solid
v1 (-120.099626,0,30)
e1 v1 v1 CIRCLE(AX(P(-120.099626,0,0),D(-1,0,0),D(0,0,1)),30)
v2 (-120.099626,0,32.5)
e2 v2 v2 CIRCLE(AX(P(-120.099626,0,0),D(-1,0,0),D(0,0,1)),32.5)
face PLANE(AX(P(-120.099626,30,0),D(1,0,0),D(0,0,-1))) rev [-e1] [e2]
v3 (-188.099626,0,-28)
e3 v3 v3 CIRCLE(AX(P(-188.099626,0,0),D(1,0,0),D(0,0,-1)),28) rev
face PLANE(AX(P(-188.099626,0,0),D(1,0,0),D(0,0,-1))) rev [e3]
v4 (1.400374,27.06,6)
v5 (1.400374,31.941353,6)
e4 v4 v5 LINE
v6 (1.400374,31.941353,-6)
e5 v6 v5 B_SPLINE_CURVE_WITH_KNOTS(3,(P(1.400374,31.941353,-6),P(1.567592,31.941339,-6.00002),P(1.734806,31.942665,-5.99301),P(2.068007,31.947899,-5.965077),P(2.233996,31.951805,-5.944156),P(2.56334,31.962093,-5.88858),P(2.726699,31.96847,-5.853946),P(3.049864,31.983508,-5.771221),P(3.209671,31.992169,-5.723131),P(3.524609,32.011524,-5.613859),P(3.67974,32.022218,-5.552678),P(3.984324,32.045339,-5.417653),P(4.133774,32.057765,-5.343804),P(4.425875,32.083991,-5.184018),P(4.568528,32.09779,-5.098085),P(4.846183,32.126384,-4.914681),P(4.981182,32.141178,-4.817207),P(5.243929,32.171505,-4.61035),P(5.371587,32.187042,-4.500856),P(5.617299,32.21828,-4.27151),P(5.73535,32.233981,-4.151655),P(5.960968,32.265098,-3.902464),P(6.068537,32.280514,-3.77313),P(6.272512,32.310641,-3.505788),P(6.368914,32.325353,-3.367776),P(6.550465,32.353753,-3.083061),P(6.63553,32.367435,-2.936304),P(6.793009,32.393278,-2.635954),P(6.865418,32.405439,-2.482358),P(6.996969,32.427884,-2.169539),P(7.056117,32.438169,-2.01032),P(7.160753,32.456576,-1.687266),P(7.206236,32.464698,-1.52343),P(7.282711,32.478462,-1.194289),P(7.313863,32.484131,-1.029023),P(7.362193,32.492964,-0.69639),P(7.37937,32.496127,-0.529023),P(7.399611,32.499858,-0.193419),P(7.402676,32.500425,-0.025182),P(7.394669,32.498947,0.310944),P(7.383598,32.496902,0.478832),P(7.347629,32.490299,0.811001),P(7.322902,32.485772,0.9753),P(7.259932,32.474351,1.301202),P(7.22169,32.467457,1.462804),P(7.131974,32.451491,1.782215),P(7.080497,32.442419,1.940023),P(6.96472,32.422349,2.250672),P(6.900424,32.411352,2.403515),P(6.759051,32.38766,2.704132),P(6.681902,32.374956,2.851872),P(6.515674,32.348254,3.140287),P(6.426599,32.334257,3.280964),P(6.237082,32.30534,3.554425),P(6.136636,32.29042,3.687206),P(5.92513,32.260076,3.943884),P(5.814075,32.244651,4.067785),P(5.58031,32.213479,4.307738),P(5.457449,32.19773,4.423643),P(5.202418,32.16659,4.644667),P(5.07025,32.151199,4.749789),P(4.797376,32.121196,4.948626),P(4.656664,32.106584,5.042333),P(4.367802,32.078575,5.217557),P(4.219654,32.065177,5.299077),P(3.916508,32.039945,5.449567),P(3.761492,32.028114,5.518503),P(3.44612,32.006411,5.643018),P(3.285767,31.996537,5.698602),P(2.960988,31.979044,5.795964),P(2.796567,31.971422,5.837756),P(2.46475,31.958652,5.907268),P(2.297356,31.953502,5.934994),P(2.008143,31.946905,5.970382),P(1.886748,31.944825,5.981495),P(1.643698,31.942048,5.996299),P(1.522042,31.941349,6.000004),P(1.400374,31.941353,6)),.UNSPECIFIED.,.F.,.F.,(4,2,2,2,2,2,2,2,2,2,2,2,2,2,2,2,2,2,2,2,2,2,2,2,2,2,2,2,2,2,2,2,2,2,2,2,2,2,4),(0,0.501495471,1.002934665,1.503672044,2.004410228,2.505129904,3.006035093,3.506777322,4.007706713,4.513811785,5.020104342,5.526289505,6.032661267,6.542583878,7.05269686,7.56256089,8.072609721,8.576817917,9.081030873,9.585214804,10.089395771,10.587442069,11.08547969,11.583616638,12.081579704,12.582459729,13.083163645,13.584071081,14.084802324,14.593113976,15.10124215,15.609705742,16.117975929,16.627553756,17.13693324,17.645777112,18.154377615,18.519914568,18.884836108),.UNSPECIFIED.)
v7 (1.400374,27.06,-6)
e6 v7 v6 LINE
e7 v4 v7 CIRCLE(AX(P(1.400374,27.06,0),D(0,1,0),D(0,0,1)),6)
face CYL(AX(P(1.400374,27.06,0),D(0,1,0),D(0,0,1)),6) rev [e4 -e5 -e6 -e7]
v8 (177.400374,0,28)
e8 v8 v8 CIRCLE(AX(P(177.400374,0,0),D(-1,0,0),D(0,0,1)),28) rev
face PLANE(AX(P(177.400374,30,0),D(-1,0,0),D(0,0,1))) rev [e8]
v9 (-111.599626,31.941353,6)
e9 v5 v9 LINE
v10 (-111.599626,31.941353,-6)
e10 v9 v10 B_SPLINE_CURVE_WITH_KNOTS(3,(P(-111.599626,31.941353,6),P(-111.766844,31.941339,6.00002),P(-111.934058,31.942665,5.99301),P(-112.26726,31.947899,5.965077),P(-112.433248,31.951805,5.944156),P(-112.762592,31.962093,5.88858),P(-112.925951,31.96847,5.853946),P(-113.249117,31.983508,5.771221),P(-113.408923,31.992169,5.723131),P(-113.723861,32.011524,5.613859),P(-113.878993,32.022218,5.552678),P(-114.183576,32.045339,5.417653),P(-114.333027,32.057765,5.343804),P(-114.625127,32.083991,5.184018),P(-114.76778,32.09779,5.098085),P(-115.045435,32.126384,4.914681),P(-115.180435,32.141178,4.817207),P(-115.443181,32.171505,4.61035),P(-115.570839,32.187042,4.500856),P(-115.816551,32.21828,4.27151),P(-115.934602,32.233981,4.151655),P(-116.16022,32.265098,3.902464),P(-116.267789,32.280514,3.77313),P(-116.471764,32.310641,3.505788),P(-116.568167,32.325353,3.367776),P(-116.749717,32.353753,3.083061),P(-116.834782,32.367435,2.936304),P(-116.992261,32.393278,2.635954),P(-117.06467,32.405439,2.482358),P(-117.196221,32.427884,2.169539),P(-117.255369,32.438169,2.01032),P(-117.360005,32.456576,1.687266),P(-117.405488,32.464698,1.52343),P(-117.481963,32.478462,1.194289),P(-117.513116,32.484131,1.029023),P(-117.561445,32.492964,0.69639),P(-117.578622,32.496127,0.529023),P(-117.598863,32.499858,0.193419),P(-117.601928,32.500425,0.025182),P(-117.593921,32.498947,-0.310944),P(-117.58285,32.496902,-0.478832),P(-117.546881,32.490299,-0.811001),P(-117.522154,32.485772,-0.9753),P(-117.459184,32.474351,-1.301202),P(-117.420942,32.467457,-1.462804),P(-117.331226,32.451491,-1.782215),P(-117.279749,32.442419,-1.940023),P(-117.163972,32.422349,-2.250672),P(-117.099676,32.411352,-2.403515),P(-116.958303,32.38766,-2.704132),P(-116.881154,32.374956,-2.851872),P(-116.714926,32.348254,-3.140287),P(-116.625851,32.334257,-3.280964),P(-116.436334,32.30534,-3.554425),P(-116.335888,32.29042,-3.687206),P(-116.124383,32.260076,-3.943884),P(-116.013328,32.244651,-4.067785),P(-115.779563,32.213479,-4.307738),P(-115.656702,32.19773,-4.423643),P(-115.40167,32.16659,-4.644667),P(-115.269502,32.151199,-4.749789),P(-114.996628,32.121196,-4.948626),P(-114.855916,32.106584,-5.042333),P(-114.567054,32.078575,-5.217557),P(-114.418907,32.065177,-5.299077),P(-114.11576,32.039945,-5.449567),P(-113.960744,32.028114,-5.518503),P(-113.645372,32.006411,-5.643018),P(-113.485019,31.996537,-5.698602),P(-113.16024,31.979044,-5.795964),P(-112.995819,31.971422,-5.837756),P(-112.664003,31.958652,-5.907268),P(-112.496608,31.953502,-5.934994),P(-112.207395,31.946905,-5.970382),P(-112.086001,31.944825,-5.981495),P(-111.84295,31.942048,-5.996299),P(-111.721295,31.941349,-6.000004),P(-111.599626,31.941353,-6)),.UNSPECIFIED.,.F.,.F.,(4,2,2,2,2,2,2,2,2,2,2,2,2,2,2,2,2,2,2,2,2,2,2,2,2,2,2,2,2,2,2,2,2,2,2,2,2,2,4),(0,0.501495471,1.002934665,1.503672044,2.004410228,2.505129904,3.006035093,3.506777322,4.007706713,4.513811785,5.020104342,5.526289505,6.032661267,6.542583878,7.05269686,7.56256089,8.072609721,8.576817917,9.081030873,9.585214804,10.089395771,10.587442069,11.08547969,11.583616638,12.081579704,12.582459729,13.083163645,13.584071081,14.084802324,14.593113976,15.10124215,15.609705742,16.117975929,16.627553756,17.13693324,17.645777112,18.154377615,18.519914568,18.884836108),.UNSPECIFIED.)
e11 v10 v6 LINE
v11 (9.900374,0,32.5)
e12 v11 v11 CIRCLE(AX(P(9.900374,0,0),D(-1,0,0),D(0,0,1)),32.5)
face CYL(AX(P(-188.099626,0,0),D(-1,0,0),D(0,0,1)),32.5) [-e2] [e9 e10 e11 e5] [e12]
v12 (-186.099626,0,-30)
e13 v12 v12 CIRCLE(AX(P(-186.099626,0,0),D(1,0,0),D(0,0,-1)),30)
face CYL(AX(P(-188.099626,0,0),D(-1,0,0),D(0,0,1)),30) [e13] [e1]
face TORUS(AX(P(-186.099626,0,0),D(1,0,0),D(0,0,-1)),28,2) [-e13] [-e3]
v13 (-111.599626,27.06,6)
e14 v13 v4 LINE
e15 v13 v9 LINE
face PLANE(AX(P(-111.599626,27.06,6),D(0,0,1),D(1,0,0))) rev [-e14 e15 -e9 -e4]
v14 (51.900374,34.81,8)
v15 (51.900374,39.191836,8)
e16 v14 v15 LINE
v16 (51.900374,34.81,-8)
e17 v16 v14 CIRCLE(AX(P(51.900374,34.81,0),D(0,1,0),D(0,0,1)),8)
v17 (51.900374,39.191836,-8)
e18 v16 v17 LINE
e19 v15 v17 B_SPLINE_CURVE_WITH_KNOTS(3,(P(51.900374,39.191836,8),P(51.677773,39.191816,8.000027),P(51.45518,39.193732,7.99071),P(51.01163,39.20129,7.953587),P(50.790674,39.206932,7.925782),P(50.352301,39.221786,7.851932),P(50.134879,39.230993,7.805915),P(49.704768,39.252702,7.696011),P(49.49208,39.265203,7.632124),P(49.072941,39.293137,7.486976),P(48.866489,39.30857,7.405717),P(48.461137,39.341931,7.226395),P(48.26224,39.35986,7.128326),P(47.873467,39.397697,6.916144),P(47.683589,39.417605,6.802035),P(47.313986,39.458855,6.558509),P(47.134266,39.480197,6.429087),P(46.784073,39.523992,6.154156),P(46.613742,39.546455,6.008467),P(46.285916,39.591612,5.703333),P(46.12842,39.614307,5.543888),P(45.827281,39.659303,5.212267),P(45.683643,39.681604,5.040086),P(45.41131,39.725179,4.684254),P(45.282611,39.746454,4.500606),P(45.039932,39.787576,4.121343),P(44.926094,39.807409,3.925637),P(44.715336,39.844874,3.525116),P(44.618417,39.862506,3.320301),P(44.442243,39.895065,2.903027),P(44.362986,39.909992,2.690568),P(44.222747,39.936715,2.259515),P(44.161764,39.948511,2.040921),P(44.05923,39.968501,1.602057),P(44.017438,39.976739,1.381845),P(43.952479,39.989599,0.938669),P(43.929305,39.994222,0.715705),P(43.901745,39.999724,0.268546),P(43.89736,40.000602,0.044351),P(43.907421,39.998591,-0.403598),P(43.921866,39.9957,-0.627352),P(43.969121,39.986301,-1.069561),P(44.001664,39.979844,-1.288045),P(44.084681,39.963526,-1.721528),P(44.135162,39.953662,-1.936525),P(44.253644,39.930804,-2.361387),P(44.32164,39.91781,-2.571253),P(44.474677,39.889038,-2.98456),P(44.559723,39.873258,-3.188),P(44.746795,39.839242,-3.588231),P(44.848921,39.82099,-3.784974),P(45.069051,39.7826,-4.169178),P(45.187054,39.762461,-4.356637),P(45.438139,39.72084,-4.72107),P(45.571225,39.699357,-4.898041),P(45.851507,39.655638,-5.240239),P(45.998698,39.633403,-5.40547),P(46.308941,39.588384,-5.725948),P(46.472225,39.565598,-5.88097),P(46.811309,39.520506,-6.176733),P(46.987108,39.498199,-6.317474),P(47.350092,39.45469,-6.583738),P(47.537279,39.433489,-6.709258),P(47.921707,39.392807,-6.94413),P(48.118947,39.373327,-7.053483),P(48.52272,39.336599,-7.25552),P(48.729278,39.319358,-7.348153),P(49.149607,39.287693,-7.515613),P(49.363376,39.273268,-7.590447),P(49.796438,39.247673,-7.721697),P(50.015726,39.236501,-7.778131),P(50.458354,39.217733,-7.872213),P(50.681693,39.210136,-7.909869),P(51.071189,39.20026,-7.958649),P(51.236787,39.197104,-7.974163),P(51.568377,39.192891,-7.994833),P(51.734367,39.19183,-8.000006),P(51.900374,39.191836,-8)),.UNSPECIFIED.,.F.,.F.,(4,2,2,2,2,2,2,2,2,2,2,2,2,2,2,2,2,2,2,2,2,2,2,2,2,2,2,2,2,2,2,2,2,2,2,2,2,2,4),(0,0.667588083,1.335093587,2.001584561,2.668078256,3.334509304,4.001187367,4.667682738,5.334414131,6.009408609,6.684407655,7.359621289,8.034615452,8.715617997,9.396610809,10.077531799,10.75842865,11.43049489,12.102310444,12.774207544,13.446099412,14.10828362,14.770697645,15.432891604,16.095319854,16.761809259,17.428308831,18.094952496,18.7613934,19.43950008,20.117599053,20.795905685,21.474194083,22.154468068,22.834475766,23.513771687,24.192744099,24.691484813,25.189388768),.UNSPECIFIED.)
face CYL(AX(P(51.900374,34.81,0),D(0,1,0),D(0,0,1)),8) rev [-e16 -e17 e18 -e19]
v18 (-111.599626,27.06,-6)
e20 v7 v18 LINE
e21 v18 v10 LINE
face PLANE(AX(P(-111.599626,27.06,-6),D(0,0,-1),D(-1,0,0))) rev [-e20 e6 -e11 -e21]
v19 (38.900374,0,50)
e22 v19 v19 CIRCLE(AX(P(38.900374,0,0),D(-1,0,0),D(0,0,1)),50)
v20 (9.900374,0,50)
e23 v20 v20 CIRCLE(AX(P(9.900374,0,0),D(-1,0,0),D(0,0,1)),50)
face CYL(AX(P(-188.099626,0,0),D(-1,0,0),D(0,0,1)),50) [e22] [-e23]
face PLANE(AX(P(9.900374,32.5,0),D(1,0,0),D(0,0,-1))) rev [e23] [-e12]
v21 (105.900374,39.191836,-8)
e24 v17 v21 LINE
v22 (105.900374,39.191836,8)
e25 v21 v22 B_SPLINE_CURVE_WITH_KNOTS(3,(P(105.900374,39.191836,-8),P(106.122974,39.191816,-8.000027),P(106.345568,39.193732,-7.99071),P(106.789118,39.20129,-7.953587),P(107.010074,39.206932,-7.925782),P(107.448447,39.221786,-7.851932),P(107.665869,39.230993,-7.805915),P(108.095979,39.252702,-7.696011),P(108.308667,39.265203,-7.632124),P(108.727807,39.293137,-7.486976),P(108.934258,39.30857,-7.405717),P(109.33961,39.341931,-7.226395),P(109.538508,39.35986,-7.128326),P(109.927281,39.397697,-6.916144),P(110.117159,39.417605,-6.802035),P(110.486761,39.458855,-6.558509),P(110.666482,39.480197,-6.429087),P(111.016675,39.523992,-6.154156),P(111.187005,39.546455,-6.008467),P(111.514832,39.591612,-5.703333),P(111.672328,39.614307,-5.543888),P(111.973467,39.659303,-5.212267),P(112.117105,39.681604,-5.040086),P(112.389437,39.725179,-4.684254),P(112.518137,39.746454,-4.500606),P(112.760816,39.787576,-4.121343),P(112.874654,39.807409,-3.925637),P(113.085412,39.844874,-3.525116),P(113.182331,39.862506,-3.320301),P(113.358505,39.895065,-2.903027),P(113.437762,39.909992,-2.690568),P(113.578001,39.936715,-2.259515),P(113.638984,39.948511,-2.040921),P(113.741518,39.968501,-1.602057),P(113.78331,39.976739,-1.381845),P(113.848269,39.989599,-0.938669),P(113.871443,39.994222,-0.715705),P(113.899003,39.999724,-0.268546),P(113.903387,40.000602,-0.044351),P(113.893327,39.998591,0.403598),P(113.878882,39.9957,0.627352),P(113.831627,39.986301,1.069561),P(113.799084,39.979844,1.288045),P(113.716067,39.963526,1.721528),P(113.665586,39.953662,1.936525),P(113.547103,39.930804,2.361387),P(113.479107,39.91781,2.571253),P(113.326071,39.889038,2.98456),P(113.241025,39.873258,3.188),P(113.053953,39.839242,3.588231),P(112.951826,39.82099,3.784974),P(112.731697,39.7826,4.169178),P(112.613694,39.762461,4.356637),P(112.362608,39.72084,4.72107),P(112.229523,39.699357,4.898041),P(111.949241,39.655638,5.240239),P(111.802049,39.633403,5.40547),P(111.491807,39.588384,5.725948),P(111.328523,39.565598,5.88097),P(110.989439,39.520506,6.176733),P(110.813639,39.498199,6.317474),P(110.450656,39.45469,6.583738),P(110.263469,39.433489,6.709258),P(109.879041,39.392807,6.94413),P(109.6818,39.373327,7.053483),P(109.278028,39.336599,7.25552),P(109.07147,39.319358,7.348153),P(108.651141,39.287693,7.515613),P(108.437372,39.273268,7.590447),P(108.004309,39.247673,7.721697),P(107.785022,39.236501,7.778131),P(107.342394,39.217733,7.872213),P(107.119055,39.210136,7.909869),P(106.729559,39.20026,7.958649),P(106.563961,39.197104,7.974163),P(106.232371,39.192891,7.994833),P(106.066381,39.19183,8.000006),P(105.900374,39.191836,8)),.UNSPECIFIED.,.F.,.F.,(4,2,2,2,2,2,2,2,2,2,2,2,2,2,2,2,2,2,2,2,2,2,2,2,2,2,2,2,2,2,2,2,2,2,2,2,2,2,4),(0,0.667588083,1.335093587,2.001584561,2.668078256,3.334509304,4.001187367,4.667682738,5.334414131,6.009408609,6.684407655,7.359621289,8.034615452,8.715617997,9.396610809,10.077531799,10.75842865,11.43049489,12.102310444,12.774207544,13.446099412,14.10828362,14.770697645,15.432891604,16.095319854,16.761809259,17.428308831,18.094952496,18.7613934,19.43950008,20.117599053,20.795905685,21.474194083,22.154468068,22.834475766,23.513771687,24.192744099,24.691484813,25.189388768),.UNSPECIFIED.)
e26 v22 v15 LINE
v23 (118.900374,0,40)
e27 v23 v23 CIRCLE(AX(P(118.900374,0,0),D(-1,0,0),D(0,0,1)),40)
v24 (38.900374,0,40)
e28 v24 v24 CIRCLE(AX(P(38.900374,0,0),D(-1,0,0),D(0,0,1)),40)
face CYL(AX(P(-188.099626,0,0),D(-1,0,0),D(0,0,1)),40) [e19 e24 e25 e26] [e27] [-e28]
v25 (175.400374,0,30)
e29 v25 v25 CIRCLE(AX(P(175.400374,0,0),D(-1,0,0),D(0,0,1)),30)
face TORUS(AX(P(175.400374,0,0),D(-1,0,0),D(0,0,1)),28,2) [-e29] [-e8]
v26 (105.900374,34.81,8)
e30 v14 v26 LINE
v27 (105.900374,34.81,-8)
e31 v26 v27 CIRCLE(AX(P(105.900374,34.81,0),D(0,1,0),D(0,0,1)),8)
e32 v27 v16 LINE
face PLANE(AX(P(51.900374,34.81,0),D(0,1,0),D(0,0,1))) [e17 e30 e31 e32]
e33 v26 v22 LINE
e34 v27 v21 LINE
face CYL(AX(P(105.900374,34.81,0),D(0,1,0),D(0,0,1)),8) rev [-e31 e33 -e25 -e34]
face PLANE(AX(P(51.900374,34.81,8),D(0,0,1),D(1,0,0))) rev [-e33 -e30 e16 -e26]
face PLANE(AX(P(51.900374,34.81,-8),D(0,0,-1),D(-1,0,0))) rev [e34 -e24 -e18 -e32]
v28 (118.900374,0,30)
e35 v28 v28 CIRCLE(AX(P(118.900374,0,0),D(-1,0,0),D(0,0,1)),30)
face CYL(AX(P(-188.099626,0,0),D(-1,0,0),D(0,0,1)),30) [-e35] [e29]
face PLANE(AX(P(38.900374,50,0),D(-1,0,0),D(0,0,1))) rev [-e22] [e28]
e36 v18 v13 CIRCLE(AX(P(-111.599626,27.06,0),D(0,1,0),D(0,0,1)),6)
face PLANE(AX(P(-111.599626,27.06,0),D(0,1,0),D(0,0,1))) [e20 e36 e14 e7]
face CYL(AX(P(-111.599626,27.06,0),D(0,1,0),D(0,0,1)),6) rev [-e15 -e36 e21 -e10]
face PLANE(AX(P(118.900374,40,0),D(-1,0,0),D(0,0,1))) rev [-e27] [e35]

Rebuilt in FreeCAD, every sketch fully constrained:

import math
import FreeCAD as App
import Part
import Sketcher

V = App.Vector
Q = App.Units.Quantity


def edges_at(feature, points):
    """Names of the edges that pass closest to the given points."""
    edges = feature.Shape.Edges
    near = lambda p: min(range(len(edges)), key=lambda i: edges[i].distToShape(Part.Vertex(*p))[0])
    return sorted({f"Edge{near(p) + 1}" for p in points})

doc = App.newDocument("Part")
body = doc.addObject("PartDesign::Body", "Body")

sketch1 = body.newObject("Sketcher::SketchObject", "Sketch")
sketch1.AttachmentSupport = (doc.getObject("XY_Plane"), [""])
sketch1.MapMode = "FlatFace"
sketch1.addGeometry(Part.LineSegment(V(-188.1, 30, 0), V(-188.1, 0, 0)), False)
sketch1.addGeometry(Part.LineSegment(V(-188.1, 0, 0), V(177.4, 0, 0)), False)
sketch1.addGeometry(Part.LineSegment(V(177.4, 0, 0), V(177.4, 30, 0)), False)
sketch1.addGeometry(Part.LineSegment(V(177.4, 30, 0), V(118.9, 30, 0)), False)
sketch1.addGeometry(Part.LineSegment(V(118.9, 30, 0), V(118.9, 40, 0)), False)
sketch1.addGeometry(Part.LineSegment(V(118.9, 40, 0), V(38.9, 40, 0)), False)
sketch1.addGeometry(Part.LineSegment(V(38.9, 40, 0), V(38.9, 50, 0)), False)
sketch1.addGeometry(Part.LineSegment(V(38.9, 50, 0), V(9.9, 50, 0)), False)
sketch1.addGeometry(Part.LineSegment(V(9.9, 50, 0), V(9.9, 32.5, 0)), False)
sketch1.addGeometry(Part.LineSegment(V(9.9, 32.5, 0), V(-120.1, 32.5, 0)), False)
sketch1.addGeometry(Part.LineSegment(V(-120.1, 32.5, 0), V(-120.1, 30, 0)), False)
sketch1.addGeometry(Part.LineSegment(V(-120.1, 30, 0), V(-188.1, 30, 0)), False)
sketch1.addConstraint(Sketcher.Constraint("Coincident", 0, 2, 1, 1))
sketch1.addConstraint(Sketcher.Constraint("Coincident", 1, 2, 2, 1))
sketch1.addConstraint(Sketcher.Constraint("Coincident", 2, 2, 3, 1))
sketch1.addConstraint(Sketcher.Constraint("Coincident", 3, 2, 4, 1))
sketch1.addConstraint(Sketcher.Constraint("Coincident", 4, 2, 5, 1))
sketch1.addConstraint(Sketcher.Constraint("Coincident", 5, 2, 6, 1))
sketch1.addConstraint(Sketcher.Constraint("Coincident", 6, 2, 7, 1))
sketch1.addConstraint(Sketcher.Constraint("Coincident", 7, 2, 8, 1))
sketch1.addConstraint(Sketcher.Constraint("Coincident", 8, 2, 9, 1))
sketch1.addConstraint(Sketcher.Constraint("Coincident", 9, 2, 10, 1))
sketch1.addConstraint(Sketcher.Constraint("Coincident", 10, 2, 11, 1))
sketch1.addConstraint(Sketcher.Constraint("Coincident", 11, 2, 0, 1))
sketch1.addConstraint(Sketcher.Constraint("Vertical", 0))
sketch1.addConstraint(Sketcher.Constraint("Horizontal", 1))
sketch1.addConstraint(Sketcher.Constraint("Vertical", 2))
sketch1.addConstraint(Sketcher.Constraint("Horizontal", 3))
sketch1.addConstraint(Sketcher.Constraint("Vertical", 4))
sketch1.addConstraint(Sketcher.Constraint("Horizontal", 5))
sketch1.addConstraint(Sketcher.Constraint("Vertical", 6))
sketch1.addConstraint(Sketcher.Constraint("Horizontal", 7))
sketch1.addConstraint(Sketcher.Constraint("Vertical", 8))
sketch1.addConstraint(Sketcher.Constraint("Horizontal", 9))
sketch1.addConstraint(Sketcher.Constraint("Vertical", 10))
sketch1.addConstraint(Sketcher.Constraint("Horizontal", 11))
sketch1.addConstraint(Sketcher.Constraint("PointOnObject", 0, 2, -1))
sketch1.addConstraint(Sketcher.Constraint("Horizontal", 3, 2, 10, 2))
sketch1.addConstraint(Sketcher.Constraint("Equal", 4, 6))
sketch1.addConstraint(Sketcher.Constraint("DistanceX", 5, 2, 5, 1, Q("80 mm")))
sketch1.addConstraint(Sketcher.Constraint("DistanceX", 7, 2, 7, 1, Q("29 mm")))
sketch1.addConstraint(Sketcher.Constraint("DistanceX", 9, 2, 9, 1, Q("130 mm")))
sketch1.addConstraint(Sketcher.Constraint("DistanceX", 11, 2, 11, 1, Q("68 mm")))
sketch1.addConstraint(Sketcher.Constraint("DistanceY", 0, 2, 0, 1, Q("30 mm")))
sketch1.addConstraint(Sketcher.Constraint("DistanceY", 4, 1, 4, 2, Q("10 mm")))
sketch1.addConstraint(Sketcher.Constraint("DistanceX", 1, 1, 1, 2, Q("365.5 mm")))
sketch1.addConstraint(Sketcher.Constraint("DistanceY", 8, 2, 8, 1, Q("17.5 mm")))
sketch1.addConstraint(Sketcher.Constraint("DistanceX", 0, 2, -1, 1, Q("188.099626 mm")))
revolution = body.newObject("PartDesign::Revolution", "Revolution")
revolution.Profile = sketch1
revolution.ReferenceAxis = (sketch1, ["H_Axis"])
revolution.Angle = 360
doc.recompute()

fillet = body.newObject("PartDesign::Fillet", "Fillet")
fillet.Base = (revolution, edges_at(revolution, [(-188.1, 0, -30), (177.4, 0, -30)]))
fillet.Radius = 2

sketch2 = body.newObject("Sketcher::SketchObject", "Sketch001")
sketch2.AttachmentSupport = (doc.getObject("XZ_Plane"), [""])
sketch2.MapMode = "FlatFace"
sketch2.AttachmentOffset = App.Placement(V(0, 0, -32.5), App.Rotation())
sketch2.addGeometry(Part.LineSegment(V(1, -6, 0), V(-112, -6, 0)), False)
sketch2.addGeometry(Part.ArcOfCircle(Part.Circle(V(-112, 0, 0), V(0, 0, 1), 6), math.radians(90), math.radians(270)), False)
sketch2.addGeometry(Part.LineSegment(V(-112, 6, 0), V(1, 6, 0)), False)
sketch2.addGeometry(Part.ArcOfCircle(Part.Circle(V(1, 0, 0), V(0, 0, 1), 6), math.radians(-90), math.radians(90)), False)
sketch2.addConstraint(Sketcher.Constraint("Tangent", 0, 2, 1, 2))
sketch2.addConstraint(Sketcher.Constraint("Tangent", 1, 1, 2, 1))
sketch2.addConstraint(Sketcher.Constraint("Tangent", 2, 2, 3, 2))
sketch2.addConstraint(Sketcher.Constraint("Tangent", 3, 1, 0, 1))
sketch2.addConstraint(Sketcher.Constraint("Horizontal", 0))
sketch2.addConstraint(Sketcher.Constraint("Horizontal", 2))
sketch2.addConstraint(Sketcher.Constraint("PointOnObject", 1, 3, -1))
sketch2.addConstraint(Sketcher.Constraint("Radius", 1, Q("6 mm")))
sketch2.addConstraint(Sketcher.Constraint("DistanceX", 0, 2, 0, 1, Q("113 mm")))
sketch2.addConstraint(Sketcher.Constraint("DistanceX", 1, 3, -1, 1, Q("111.599626 mm")))
pocket1 = body.newObject("PartDesign::Pocket", "Pocket")
pocket1.Profile = sketch2
pocket1.Length = 5.44
pocket1.Reversed = True

sketch3 = body.newObject("Sketcher::SketchObject", "Sketch002")
sketch3.AttachmentSupport = (doc.getObject("XZ_Plane"), [""])
sketch3.MapMode = "FlatFace"
sketch3.AttachmentOffset = App.Placement(V(0, 0, -40), App.Rotation())
sketch3.addGeometry(Part.LineSegment(V(106, -8, 0), V(52, -8, 0)), False)
sketch3.addGeometry(Part.ArcOfCircle(Part.Circle(V(52, 0, 0), V(0, 0, 1), 8), math.radians(90), math.radians(270)), False)
sketch3.addGeometry(Part.LineSegment(V(52, 8, 0), V(106, 8, 0)), False)
sketch3.addGeometry(Part.ArcOfCircle(Part.Circle(V(106, 0, 0), V(0, 0, 1), 8), math.radians(-90), math.radians(90)), False)
sketch3.addConstraint(Sketcher.Constraint("Tangent", 0, 2, 1, 2))
sketch3.addConstraint(Sketcher.Constraint("Tangent", 1, 1, 2, 1))
sketch3.addConstraint(Sketcher.Constraint("Tangent", 2, 2, 3, 2))
sketch3.addConstraint(Sketcher.Constraint("Tangent", 3, 1, 0, 1))
sketch3.addConstraint(Sketcher.Constraint("Horizontal", 0))
sketch3.addConstraint(Sketcher.Constraint("Horizontal", 2))
sketch3.addConstraint(Sketcher.Constraint("PointOnObject", 1, 3, -1))
sketch3.addConstraint(Sketcher.Constraint("Radius", 1, Q("8 mm")))
sketch3.addConstraint(Sketcher.Constraint("DistanceX", 0, 2, 0, 1, Q("54 mm")))
sketch3.addConstraint(Sketcher.Constraint("DistanceX", -1, 1, 1, 3, Q("51.900374 mm")))
pocket2 = body.newObject("PartDesign::Pocket", "Pocket001")
pocket2.Profile = sketch3
pocket2.Length = 5.19
pocket2.Reversed = True

doc.recompute()
